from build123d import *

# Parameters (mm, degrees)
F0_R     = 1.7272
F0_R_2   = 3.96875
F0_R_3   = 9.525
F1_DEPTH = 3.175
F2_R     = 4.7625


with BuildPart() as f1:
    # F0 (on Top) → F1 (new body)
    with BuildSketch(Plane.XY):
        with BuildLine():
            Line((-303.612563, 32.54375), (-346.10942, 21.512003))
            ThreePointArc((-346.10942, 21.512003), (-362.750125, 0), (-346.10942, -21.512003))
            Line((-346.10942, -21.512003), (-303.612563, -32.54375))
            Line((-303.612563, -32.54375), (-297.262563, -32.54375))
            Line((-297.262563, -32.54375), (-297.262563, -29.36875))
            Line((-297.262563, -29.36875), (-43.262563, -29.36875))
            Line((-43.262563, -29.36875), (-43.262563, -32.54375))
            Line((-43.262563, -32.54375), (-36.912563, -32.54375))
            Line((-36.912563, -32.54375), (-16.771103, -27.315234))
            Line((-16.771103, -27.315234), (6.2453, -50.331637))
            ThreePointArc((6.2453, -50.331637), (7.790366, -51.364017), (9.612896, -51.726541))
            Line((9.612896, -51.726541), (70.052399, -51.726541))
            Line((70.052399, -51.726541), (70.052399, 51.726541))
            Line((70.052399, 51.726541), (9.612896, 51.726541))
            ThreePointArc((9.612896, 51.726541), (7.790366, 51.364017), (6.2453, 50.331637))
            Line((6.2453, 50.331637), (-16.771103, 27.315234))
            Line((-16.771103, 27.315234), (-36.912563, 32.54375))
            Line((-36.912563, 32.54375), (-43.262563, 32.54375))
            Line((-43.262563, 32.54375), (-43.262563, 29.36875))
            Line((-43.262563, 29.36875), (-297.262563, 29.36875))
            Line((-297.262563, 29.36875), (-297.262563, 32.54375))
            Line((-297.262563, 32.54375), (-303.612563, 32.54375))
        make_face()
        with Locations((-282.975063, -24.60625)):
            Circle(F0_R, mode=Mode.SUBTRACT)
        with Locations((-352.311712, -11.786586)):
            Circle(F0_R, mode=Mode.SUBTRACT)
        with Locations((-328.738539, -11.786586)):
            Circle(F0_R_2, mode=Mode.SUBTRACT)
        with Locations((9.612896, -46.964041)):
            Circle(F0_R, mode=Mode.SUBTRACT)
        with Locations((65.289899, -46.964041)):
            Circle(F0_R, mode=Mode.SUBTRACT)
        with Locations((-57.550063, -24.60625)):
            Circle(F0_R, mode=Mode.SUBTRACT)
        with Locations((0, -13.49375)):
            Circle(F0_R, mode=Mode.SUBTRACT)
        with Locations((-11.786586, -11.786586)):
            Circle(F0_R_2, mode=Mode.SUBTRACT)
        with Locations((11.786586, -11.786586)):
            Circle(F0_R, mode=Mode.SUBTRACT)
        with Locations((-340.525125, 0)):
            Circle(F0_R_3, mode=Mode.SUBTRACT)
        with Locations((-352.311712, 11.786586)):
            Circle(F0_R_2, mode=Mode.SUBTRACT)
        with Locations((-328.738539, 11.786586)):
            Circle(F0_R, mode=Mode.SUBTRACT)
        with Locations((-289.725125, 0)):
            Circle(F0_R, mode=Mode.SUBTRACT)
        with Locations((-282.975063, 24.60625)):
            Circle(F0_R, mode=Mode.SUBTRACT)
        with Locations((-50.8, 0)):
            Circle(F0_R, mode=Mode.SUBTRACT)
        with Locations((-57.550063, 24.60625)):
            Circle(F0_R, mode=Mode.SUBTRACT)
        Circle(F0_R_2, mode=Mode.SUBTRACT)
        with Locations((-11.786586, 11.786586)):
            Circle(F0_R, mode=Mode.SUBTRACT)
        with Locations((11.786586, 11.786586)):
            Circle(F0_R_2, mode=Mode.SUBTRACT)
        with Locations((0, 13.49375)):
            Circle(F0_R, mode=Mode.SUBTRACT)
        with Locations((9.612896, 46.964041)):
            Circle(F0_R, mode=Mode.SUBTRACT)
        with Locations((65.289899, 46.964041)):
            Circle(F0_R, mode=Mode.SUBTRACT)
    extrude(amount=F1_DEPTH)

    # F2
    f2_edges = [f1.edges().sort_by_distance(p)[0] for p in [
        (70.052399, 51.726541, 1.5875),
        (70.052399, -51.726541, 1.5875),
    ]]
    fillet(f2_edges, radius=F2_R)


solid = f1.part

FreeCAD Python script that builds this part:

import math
import FreeCAD as App
import Part
import Sketcher
from FreeCAD import Vector
Q = App.Units.Quantity


def edges_at(feature, points):
    """Names of the edges that pass closest to the given points."""
    edges = feature.Shape.Edges
    near = lambda p: min(range(len(edges)), key=lambda i: edges[i].distToShape(Part.Vertex(*p))[0])
    return sorted({f"Edge{near(p) + 1}" for p in points})

doc = App.newDocument("Part")
params = doc.addObject("Spreadsheet::Sheet", "Params")
for row, (alias, value) in enumerate([
    ("sketch1_diameter", "0.75 in"),
    ("sketch1_width", "10 in"),
    ("sketch1_diameter2", "0.136 in"),
    ("sketch1_diameter3", "0.3125 in"),
    ("sketch1_radius", "0.875 in"),
    ("pad1_length", "0.125 in"),
    ("fillet_radius", "0.1875 in"),
], start=1):
    params.set(f"A{row}", alias)
    params.set(f"B{row}", "=" + value)
    params.setAlias(f"B{row}", alias)

body = doc.addObject("PartDesign::Body", "Body")

sketch1 = body.newObject("Sketcher::SketchObject", "Sketch")
sketch1.AttachmentSupport = (doc.getObject("XY_Plane"), [""])
sketch1.MapMode = "FlatFace"
sketch1.addGeometry([
    Part.LineSegment(Vector(-303.612563, 32.54375, 0), Vector(-346.10942, 21.512003, 0)),
    Part.ArcOfCircle(Part.Circle(Vector(-340.525125, 0, 0), Vector(0, 0, 1), 22.225), math.radians(104.552195), math.radians(255.447805)),
    Part.LineSegment(Vector(-346.10942, -21.512003, 0), Vector(-303.612563, -32.54375, 0)),
    Part.LineSegment(Vector(-303.612563, -32.54375, 0), Vector(-297.262563, -32.54375, 0)),
    Part.LineSegment(Vector(-297.262563, -32.54375, 0), Vector(-297.262563, -29.36875, 0)),
    Part.LineSegment(Vector(-297.262563, -29.36875, 0), Vector(-43.262563, -29.36875, 0)),
    Part.LineSegment(Vector(-43.262563, -29.36875, 0), Vector(-43.262563, -32.54375, 0)),
    Part.LineSegment(Vector(-43.262563, -32.54375, 0), Vector(-36.912563, -32.54375, 0)),
    Part.LineSegment(Vector(-36.912563, -32.54375, 0), Vector(-16.771103, -27.315234, 0)),
    Part.LineSegment(Vector(-16.771103, -27.315234, 0), Vector(6.2453, -50.331637, 0)),
    Part.ArcOfCircle(Part.Circle(Vector(9.612897, -46.964039, 0), Vector(0, 0, 1), 4.762502), math.radians(-134.999991), math.radians(-90.000011)),
    Part.LineSegment(Vector(9.612896, -51.726541, 0), Vector(70.052399, -51.726541, 0)),
    Part.LineSegment(Vector(70.052399, -51.726541, 0), Vector(70.052399, 51.726541, 0)),
    Part.LineSegment(Vector(70.052399, 51.726541, 0), Vector(9.612896, 51.726541, 0)),
    Part.ArcOfCircle(Part.Circle(Vector(9.612897, 46.964039, 0), Vector(0, 0, 1), 4.762502), math.radians(90.000011), math.radians(134.999991)),
    Part.LineSegment(Vector(6.2453, 50.331637, 0), Vector(-16.771103, 27.315234, 0)),
    Part.LineSegment(Vector(-16.771103, 27.315234, 0), Vector(-36.912563, 32.54375, 0)),
    Part.LineSegment(Vector(-36.912563, 32.54375, 0), Vector(-43.262563, 32.54375, 0)),
    Part.LineSegment(Vector(-43.262563, 32.54375, 0), Vector(-43.262563, 29.36875, 0)),
    Part.LineSegment(Vector(-43.262563, 29.36875, 0), Vector(-297.262563, 29.36875, 0)),
    Part.LineSegment(Vector(-297.262563, 29.36875, 0), Vector(-297.262563, 32.54375, 0)),
    Part.LineSegment(Vector(-297.262563, 32.54375, 0), Vector(-303.612563, 32.54375, 0)),
    Part.Circle(Vector(-282.975063, -24.60625, 0), Vector(0, 0, 1), 1.7272),
    Part.Circle(Vector(-352.311712, -11.786586, 0), Vector(0, 0, 1), 1.7272),
    Part.Circle(Vector(-328.738539, -11.786586, 0), Vector(0, 0, 1), 3.96875),
    Part.Circle(Vector(-57.550063, -24.60625, 0), Vector(0, 0, 1), 1.7272),
    Part.Circle(Vector(9.612896, -46.964041, 0), Vector(0, 0, 1), 1.7272),
    Part.Circle(Vector(65.289899, -46.964041, 0), Vector(0, 0, 1), 1.7272),
    Part.Circle(Vector(0, -13.49375, 0), Vector(0, 0, 1), 1.7272),
    Part.Circle(Vector(-11.786586, -11.786586, 0), Vector(0, 0, 1), 3.96875),
    Part.Circle(Vector(11.786586, -11.786586, 0), Vector(0, 0, 1), 1.7272),
    Part.Circle(Vector(-340.525125, 0, 0), Vector(0, 0, 1), 9.525),
    Part.Circle(Vector(-352.311712, 11.786586, 0), Vector(0, 0, 1), 3.96875),
    Part.Circle(Vector(-328.738539, 11.786586, 0), Vector(0, 0, 1), 1.7272),
    Part.Circle(Vector(-289.725125, 0, 0), Vector(0, 0, 1), 1.7272),
    Part.Circle(Vector(-282.975063, 24.60625, 0), Vector(0, 0, 1), 1.7272),
    Part.Circle(Vector(-50.8, 0, 0), Vector(0, 0, 1), 1.7272),
    Part.Circle(Vector(0, 0, 0), Vector(0, 0, 1), 3.96875),
    Part.Circle(Vector(-11.786586, 11.786586, 0), Vector(0, 0, 1), 1.7272),
    Part.Circle(Vector(11.786586, 11.786586, 0), Vector(0, 0, 1), 3.96875),
    Part.Circle(Vector(0, 13.49375, 0), Vector(0, 0, 1), 1.7272),
    Part.Circle(Vector(-57.550063, 24.60625, 0), Vector(0, 0, 1), 1.7272),
    Part.Circle(Vector(9.612896, 46.964041, 0), Vector(0, 0, 1), 1.7272),
    Part.Circle(Vector(65.289899, 46.964041, 0), Vector(0, 0, 1), 1.7272),
], False)
sketch1.addConstraint([
    Sketcher.Constraint("Tangent", 0, 2, 1, 1),
    Sketcher.Constraint("Tangent", 1, 2, 2, 1),
    Sketcher.Constraint("Coincident", 2, 2, 3, 1),
    Sketcher.Constraint("Coincident", 3, 2, 4, 1),
    Sketcher.Constraint("Coincident", 4, 2, 5, 1),
    Sketcher.Constraint("Coincident", 5, 2, 6, 1),
    Sketcher.Constraint("Coincident", 6, 2, 7, 1),
    Sketcher.Constraint("Coincident", 7, 2, 8, 1),
    Sketcher.Constraint("Coincident", 8, 2, 9, 1),
    Sketcher.Constraint("Tangent", 9, 2, 10, 1),
    Sketcher.Constraint("Tangent", 10, 2, 11, 1),
    Sketcher.Constraint("Coincident", 11, 2, 12, 1),
    Sketcher.Constraint("Coincident", 12, 2, 13, 1),
    Sketcher.Constraint("Tangent", 13, 2, 14, 1),
    Sketcher.Constraint("Tangent", 14, 2, 15, 1),
    Sketcher.Constraint("Coincident", 15, 2, 16, 1),
    Sketcher.Constraint("Coincident", 16, 2, 17, 1),
    Sketcher.Constraint("Coincident", 17, 2, 18, 1),
    Sketcher.Constraint("Coincident", 18, 2, 19, 1),
    Sketcher.Constraint("Coincident", 19, 2, 20, 1),
    Sketcher.Constraint("Coincident", 20, 2, 21, 1),
    Sketcher.Constraint("Coincident", 21, 2, 0, 1),
    Sketcher.Constraint("Horizontal", 3),
    Sketcher.Constraint("Vertical", 4),
    Sketcher.Constraint("Horizontal", 5),
    Sketcher.Constraint("Vertical", 6),
    Sketcher.Constraint("Horizontal", 7),
    Sketcher.Constraint("Horizontal", 11),
    Sketcher.Constraint("Vertical", 12),
    Sketcher.Constraint("Horizontal", 13),
    Sketcher.Constraint("Horizontal", 17),
    Sketcher.Constraint("Vertical", 18),
    Sketcher.Constraint("Horizontal", 19),
    Sketcher.Constraint("Vertical", 20),
    Sketcher.Constraint("Horizontal", 21),
    Sketcher.Constraint("Coincident", 37, 3, -1, 1),
    Sketcher.Constraint("Coincident", 26, 3, 10, 3),
    Sketcher.Constraint("Coincident", 31, 3, 1, 3),
    Sketcher.Constraint("Coincident", 42, 3, 14, 3),
    Sketcher.Constraint("Equal", 10, 14),
    Sketcher.Constraint("Equal", 22, 23),
    Sketcher.Constraint("Equal", 23, 25),
    Sketcher.Constraint("Equal", 25, 26),
    Sketcher.Constraint("Equal", 26, 27),
    Sketcher.Constraint("Equal", 27, 28),
    Sketcher.Constraint("Equal", 24, 29),
    Sketcher.Constraint("Equal", 28, 30),
    Sketcher.Constraint("Equal", 29, 32),
    Sketcher.Constraint("Equal", 30, 33),
    Sketcher.Constraint("Equal", 33, 34),
    Sketcher.Constraint("Equal", 34, 35),
    Sketcher.Constraint("Equal", 35, 36),
    Sketcher.Constraint("Equal", 32, 37),
    Sketcher.Constraint("Equal", 36, 38),
    Sketcher.Constraint("Equal", 37, 39),
    Sketcher.Constraint("Equal", 38, 40),
    Sketcher.Constraint("Equal", 40, 41),
    Sketcher.Constraint("Equal", 41, 42),
    Sketcher.Constraint("Equal", 42, 43),
    Sketcher.Constraint("Symmetric", 30, 3, 38, 3, -1, 1),
    Sketcher.Constraint("Symmetric", 29, 3, 39, 3, -1, 1),
    Sketcher.Constraint("Symmetric", 28, 3, 40, 3, -1, 1),
    Sketcher.Constraint("Symmetric", 29, 3, 30, 3, -2),
    Sketcher.Constraint("Symmetric", 10, 3, 14, 3, -1),
    Sketcher.Constraint("Symmetric", 23, 3, 32, 3, -1),
    Sketcher.Constraint("Symmetric", 24, 3, 33, 3, -1),
    Sketcher.Constraint("Symmetric", 22, 3, 35, 3, -1),
    Sketcher.Constraint("Symmetric", 25, 3, 41, 3, -1),
    Sketcher.Constraint("Symmetric", 27, 3, 43, 3, -1),
    Sketcher.Constraint("Symmetric", 0, 2, 1, 2, -1),
    Sketcher.Constraint("Symmetric", 8, 2, 15, 2, -1),
    Sketcher.Constraint("Symmetric", 7, 2, 16, 2, -1),
    Sketcher.Constraint("Symmetric", 5, 2, 18, 2, -1),
    Sketcher.Constraint("Symmetric", 3, 2, 20, 2, -1),
    Sketcher.Constraint("PointOnObject", 28, 3, -2),
    Sketcher.Constraint("PointOnObject", 34, 3, -1),
    Sketcher.Constraint("PointOnObject", 36, 3, -1),
    Sketcher.Constraint("Parallel", 0, 8),
    Sketcher.Constraint("Perpendicular", 9, 15),
    Sketcher.Constraint("Horizontal", 23, 3, 24, 3),
    Sketcher.Constraint("Horizontal", 22, 3, 25, 3),
    Sketcher.Constraint("Horizontal", 26, 3, 27, 3),
    Sketcher.Constraint("Horizontal", 24, 3, 29, 3),
    Sketcher.Constraint("Horizontal", 3, 2, 6, 2),
    Sketcher.Constraint("Equal", 3, 7),
    Sketcher.Constraint("Diameter", 31, Q("0.75 in")),
    Sketcher.Constraint("DistanceX", 5, 1, 5, 2, Q("10 in")),
    Sketcher.Constraint("Diameter", 22, Q("0.136 in")),
    Sketcher.Constraint("Diameter", 24, Q("0.3125 in")),
    Sketcher.Constraint("DistanceX", 36, 3, -1, 1, Q("2 in")),
    Sketcher.Constraint("Radius", 1, Q("0.875 in")),
    Sketcher.Constraint("Radius", 10, Q("0.1875001 in")),
    Sketcher.Constraint("DistanceX", 31, 3, 34, 3, Q("2 in")),
    Sketcher.Constraint("DistanceX", 3, 1, 3, 2, Q("0.25 in")),
    Sketcher.Constraint("DistanceY", 4, 1, 4, 2, Q("0.125 in")),
    Sketcher.Constraint("DistanceY", 6, 2, 28, 3, Q("0.75 in")),
    Sketcher.Constraint("DistanceY", 22, 3, -1, 1, Q("0.96875 in")),
    Sketcher.Constraint("DistanceY", 28, 3, -1, 1, Q("0.53125 in")),
    Sketcher.Constraint("DistanceX", 22, 3, 25, 3, Q("8.875 in")),
    Sketcher.Constraint("DistanceX", 2, 2, 22, 3, Q("0.8125 in")),
    Sketcher.Constraint("DistanceX", 27, 3, 11, 2, Q("0.1875 in")),
    Sketcher.Constraint("DistanceY", 12, 1, 12, 2, Q("103.453082 mm")),
    Sketcher.Constraint("DistanceX", -1, 1, 27, 3, Q("65.289899 mm")),
    Sketcher.Constraint("DistanceX", -1, 1, 9, 2, Q("6.2453 mm")),
    Sketcher.Constraint("DistanceX", 8, 2, 10, 2, Q("26.383999 mm")),
    Sketcher.Constraint("Distance", 0, Q("43.905379 mm")),
    Sketcher.Constraint("DistanceX", 23, 3, -1, 1, Q("352.311712 mm")),
    Sketcher.Constraint("DistanceX", 24, 3, -1, 1, Q("328.738539 mm")),
    Sketcher.Constraint("DistanceX", 29, 3, 26, 3, Q("21.399482 mm")),
    Sketcher.Constraint("DistanceY", 23, 3, 32, 3, Q("23.573172 mm")),
])
sketch1.setExpression("Constraints[85]", "Params.sketch1_diameter")
sketch1.setExpression("Constraints[86]", "Params.sketch1_width")
sketch1.setExpression("Constraints[87]", "Params.sketch1_diameter2")
sketch1.setExpression("Constraints[88]", "Params.sketch1_diameter3")
sketch1.setExpression("Constraints[90]", "Params.sketch1_radius")
pad1 = body.newObject("PartDesign::Pad", "Pad")
pad1.Profile = sketch1
pad1.setExpression("Length", "Params.pad1_length")
doc.recompute()

fillet = body.newObject("PartDesign::Fillet", "Fillet")
fillet.Base = (pad1, edges_at(pad1, [(70.052, 51.727, 1.587), (70.052, -51.727, 1.587)]))
fillet.setExpression("Radius", "Params.fillet_radius")

doc.recompute()
